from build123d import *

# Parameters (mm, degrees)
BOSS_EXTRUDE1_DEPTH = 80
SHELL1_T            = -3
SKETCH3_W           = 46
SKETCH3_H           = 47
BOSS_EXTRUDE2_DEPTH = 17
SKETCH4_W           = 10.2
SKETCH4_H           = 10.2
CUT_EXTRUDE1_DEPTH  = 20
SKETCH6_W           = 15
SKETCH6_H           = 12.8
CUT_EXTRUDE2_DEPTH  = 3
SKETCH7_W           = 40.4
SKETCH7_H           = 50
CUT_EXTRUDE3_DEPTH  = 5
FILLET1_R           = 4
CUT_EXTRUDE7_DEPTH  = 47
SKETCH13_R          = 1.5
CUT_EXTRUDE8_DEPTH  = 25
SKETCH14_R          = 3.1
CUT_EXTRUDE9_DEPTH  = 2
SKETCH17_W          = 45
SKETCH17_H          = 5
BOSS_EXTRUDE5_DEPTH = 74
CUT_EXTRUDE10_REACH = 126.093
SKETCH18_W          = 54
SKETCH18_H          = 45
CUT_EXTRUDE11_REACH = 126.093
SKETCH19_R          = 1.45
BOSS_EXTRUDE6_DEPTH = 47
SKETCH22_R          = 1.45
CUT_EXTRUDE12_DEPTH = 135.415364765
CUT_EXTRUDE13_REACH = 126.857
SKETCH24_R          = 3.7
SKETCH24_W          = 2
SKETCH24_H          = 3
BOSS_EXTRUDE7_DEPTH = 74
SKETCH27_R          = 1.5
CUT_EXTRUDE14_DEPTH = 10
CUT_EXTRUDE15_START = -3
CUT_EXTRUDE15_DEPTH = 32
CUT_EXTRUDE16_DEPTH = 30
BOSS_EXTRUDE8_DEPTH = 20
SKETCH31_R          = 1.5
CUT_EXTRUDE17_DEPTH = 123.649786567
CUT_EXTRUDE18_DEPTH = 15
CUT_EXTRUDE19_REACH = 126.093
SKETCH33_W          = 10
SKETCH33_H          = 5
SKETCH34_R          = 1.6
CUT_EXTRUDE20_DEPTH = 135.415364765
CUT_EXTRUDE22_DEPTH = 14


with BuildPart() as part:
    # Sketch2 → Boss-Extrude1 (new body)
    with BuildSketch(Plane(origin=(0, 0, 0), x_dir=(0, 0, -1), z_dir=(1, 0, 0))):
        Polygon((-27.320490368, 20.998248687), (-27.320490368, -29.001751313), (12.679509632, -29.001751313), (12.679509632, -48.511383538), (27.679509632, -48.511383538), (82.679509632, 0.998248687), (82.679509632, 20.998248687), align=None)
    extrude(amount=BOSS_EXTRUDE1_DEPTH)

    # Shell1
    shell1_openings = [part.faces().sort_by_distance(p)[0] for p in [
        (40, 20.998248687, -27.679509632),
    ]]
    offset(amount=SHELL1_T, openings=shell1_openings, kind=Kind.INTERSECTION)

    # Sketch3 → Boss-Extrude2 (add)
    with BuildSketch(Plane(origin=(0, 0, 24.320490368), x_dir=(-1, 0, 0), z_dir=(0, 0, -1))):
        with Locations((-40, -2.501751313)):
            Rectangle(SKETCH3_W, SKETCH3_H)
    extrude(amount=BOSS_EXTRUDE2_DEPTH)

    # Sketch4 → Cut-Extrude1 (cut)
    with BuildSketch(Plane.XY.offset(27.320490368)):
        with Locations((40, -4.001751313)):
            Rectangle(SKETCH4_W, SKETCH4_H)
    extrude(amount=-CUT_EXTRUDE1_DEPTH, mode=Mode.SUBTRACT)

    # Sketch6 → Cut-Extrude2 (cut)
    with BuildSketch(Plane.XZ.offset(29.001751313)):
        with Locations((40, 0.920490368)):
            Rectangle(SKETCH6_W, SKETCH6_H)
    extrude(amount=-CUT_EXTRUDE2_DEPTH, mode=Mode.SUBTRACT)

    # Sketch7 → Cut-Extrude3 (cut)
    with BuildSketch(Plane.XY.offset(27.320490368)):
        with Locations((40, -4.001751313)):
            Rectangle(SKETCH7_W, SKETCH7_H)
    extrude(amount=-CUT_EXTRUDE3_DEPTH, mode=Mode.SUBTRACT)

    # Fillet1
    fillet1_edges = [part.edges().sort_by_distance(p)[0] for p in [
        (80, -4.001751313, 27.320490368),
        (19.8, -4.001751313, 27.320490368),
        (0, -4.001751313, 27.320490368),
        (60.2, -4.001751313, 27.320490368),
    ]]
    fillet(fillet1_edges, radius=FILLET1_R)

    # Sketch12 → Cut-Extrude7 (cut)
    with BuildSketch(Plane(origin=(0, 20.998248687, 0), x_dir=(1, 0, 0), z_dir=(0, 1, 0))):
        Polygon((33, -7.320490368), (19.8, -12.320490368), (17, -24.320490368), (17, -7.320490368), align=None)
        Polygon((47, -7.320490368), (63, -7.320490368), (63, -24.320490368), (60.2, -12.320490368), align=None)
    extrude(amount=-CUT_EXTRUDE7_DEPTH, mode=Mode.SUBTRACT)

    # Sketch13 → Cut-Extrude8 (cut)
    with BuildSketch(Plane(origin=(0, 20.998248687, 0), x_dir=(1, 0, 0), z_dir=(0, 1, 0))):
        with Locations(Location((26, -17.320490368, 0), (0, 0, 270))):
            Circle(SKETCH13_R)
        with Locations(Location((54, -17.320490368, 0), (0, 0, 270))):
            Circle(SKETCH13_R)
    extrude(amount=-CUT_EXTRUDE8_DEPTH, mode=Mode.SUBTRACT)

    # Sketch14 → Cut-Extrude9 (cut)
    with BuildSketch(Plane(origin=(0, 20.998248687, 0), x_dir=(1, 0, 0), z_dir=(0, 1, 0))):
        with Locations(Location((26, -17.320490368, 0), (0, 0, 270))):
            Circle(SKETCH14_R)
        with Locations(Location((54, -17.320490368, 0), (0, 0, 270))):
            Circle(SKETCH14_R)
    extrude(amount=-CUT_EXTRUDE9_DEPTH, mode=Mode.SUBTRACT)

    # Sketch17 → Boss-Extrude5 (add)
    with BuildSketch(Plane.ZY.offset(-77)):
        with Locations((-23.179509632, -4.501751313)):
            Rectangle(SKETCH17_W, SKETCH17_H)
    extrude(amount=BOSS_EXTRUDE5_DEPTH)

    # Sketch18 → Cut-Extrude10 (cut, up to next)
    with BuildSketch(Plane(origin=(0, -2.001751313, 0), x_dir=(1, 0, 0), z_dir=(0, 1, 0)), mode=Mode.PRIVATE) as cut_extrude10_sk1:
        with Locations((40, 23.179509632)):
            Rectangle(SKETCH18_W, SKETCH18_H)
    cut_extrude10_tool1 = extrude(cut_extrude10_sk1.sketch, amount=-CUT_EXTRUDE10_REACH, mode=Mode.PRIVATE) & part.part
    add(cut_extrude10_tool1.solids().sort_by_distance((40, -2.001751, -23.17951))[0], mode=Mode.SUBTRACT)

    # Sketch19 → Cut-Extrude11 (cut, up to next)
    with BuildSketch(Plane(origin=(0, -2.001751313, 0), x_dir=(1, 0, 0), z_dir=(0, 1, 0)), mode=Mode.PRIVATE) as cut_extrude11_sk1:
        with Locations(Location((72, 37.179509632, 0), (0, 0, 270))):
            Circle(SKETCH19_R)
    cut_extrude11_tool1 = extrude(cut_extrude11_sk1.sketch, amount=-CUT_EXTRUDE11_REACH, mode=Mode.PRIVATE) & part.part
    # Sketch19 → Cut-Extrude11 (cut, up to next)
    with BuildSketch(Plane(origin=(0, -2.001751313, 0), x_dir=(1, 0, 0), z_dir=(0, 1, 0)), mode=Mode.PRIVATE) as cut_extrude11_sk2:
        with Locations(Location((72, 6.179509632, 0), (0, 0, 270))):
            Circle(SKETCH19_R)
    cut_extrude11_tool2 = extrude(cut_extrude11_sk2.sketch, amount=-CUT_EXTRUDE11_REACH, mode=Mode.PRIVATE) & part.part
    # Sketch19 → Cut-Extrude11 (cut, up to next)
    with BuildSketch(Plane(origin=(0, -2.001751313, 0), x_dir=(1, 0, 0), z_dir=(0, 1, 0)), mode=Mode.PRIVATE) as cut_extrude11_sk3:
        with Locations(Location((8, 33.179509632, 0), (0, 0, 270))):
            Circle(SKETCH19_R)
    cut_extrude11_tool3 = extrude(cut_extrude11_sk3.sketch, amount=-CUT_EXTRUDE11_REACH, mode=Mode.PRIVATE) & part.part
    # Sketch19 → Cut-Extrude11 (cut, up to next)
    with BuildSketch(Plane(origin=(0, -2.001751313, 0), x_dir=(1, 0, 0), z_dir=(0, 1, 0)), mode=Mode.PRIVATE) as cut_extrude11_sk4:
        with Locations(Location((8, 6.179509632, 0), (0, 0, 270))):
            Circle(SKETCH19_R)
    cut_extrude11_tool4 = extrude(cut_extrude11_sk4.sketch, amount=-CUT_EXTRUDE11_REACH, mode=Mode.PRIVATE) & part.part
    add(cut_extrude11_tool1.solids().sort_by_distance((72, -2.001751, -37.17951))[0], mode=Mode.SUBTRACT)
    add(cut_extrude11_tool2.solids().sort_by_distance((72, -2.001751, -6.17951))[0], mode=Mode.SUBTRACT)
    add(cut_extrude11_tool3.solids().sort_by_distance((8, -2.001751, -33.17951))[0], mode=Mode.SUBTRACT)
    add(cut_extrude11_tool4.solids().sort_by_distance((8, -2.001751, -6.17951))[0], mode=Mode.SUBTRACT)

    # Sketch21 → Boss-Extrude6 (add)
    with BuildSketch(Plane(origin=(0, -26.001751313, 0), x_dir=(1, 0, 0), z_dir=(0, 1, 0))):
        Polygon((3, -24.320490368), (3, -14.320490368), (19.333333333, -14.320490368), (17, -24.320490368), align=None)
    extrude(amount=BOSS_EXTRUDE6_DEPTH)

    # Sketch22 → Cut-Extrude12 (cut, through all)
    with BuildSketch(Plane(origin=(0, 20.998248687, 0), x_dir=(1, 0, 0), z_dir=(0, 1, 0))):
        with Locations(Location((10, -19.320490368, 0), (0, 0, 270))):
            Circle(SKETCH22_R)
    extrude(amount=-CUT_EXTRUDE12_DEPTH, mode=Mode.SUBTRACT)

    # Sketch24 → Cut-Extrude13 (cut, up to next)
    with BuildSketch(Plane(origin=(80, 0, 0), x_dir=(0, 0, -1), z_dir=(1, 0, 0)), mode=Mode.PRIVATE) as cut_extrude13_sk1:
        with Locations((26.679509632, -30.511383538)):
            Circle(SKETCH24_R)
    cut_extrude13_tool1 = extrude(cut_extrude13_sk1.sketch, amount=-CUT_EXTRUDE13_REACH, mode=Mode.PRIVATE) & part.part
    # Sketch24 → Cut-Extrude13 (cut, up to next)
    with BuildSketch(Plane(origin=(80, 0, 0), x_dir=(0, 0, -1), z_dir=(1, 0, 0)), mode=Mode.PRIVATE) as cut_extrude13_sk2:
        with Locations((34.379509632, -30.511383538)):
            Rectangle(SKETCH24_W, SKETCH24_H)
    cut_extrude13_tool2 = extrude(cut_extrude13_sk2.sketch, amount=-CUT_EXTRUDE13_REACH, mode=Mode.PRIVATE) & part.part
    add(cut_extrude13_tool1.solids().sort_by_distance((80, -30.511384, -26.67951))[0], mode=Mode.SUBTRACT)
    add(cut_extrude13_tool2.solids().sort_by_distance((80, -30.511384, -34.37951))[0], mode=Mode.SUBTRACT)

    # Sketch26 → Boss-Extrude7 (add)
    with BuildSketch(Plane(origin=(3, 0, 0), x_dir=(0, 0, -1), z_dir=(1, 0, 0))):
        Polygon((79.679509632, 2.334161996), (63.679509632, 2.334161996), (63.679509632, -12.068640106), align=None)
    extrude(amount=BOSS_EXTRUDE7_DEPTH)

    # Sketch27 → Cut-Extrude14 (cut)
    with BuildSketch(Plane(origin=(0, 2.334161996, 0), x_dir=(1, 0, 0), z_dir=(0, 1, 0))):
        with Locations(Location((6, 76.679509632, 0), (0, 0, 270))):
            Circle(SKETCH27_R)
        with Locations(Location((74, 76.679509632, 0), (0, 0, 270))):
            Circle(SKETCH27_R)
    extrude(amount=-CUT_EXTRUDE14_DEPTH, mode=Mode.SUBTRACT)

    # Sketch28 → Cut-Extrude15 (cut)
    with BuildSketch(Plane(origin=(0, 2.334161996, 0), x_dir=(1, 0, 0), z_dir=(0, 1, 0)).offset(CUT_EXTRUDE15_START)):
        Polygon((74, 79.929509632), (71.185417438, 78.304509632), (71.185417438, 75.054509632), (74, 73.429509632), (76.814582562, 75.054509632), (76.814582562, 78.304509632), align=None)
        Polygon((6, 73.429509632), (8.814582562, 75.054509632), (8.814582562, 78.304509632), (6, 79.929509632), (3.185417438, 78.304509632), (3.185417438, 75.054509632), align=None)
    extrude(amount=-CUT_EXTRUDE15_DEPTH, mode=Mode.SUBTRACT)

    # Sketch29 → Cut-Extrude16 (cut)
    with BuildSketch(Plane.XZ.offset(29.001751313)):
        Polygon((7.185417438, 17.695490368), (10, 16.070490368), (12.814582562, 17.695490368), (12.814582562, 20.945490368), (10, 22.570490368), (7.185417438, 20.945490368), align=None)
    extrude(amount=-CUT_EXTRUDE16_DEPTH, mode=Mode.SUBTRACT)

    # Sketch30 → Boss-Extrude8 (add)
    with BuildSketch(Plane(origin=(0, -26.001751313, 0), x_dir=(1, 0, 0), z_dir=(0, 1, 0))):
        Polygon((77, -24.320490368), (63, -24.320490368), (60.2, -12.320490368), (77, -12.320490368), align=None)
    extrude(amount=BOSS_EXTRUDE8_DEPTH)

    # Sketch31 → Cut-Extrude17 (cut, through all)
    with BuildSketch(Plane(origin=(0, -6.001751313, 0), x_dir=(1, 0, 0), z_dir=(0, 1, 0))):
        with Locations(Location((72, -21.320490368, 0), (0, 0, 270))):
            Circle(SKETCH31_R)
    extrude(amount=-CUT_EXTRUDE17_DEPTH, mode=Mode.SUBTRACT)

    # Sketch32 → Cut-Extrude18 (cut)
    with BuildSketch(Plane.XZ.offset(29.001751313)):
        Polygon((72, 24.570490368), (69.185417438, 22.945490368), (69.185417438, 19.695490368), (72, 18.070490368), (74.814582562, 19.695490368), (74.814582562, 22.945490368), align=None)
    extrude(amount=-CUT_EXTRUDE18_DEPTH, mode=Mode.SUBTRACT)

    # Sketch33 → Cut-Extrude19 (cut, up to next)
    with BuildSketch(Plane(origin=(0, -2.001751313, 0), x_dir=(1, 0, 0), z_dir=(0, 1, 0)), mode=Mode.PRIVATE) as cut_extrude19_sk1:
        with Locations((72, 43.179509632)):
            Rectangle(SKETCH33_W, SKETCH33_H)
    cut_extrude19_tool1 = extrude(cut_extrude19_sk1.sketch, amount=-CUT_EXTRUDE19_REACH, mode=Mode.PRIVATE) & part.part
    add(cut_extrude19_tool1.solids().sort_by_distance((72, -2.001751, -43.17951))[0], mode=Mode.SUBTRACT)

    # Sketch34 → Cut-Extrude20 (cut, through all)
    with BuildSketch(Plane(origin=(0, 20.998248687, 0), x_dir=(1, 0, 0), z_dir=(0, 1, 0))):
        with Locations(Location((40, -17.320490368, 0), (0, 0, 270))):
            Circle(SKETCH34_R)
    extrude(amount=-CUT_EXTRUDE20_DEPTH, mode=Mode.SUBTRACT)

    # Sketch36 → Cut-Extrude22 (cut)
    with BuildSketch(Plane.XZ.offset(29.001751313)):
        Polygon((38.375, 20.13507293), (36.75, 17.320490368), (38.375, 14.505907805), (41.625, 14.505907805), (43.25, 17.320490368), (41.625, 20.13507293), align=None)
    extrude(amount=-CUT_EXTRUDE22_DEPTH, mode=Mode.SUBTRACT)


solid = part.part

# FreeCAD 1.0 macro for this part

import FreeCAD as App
import Part
import Sketcher
Q = App.Units.Quantity


def edges_at(feature, points):
    """Names of the edges that pass closest to the given points."""
    edges = feature.Shape.Edges
    near = lambda p: min(range(len(edges)), key=lambda i: edges[i].distToShape(Part.Vertex(*p))[0])
    return sorted({f"Edge{near(p) + 1}" for p in points})


def faces_at(feature, points):
    """Names of the faces that lie closest to the given points."""
    faces = feature.Shape.Faces
    near = lambda p: min(range(len(faces)), key=lambda i: faces[i].distToShape(Part.Vertex(*p))[0])
    return sorted({f"Face{near(p) + 1}" for p in points})

doc = App.newDocument("Part")
body = doc.addObject("PartDesign::Body", "Body")

# Sketch on YZ plane
sketch1 = body.newObject("Sketcher::SketchObject", "Sketch")
sketch1.AttachmentSupport = (doc.getObject("YZ_Plane"), [""])
sketch1.MapMode = "FlatFace"
sketch1.addGeometry(Part.LineSegment(App.Vector(21, 27, 0), App.Vector(-29, 27, 0)), False)
sketch1.addGeometry(Part.LineSegment(App.Vector(-29, 27, 0), App.Vector(-29, -13, 0)), False)
sketch1.addGeometry(Part.LineSegment(App.Vector(-29, -13, 0), App.Vector(-49, -13, 0)), False)
sketch1.addGeometry(Part.LineSegment(App.Vector(-49, -13, 0), App.Vector(-49, -28, 0)), False)
sketch1.addGeometry(Part.LineSegment(App.Vector(-49, -28, 0), App.Vector(1, -83, 0)), False)
sketch1.addGeometry(Part.LineSegment(App.Vector(1, -83, 0), App.Vector(21, -83, 0)), False)
sketch1.addGeometry(Part.LineSegment(App.Vector(21, -83, 0), App.Vector(21, 27, 0)), False)
sketch1.addConstraint(Sketcher.Constraint("Coincident", 0, 2, 1, 1))
sketch1.addConstraint(Sketcher.Constraint("Coincident", 1, 2, 2, 1))
sketch1.addConstraint(Sketcher.Constraint("Coincident", 2, 2, 3, 1))
sketch1.addConstraint(Sketcher.Constraint("Coincident", 3, 2, 4, 1))
sketch1.addConstraint(Sketcher.Constraint("Coincident", 4, 2, 5, 1))
sketch1.addConstraint(Sketcher.Constraint("Coincident", 5, 2, 6, 1))
sketch1.addConstraint(Sketcher.Constraint("Coincident", 6, 2, 0, 1))
sketch1.addConstraint(Sketcher.Constraint("Horizontal", 0))
sketch1.addConstraint(Sketcher.Constraint("Vertical", 1))
sketch1.addConstraint(Sketcher.Constraint("Horizontal", 2))
sketch1.addConstraint(Sketcher.Constraint("Vertical", 3))
sketch1.addConstraint(Sketcher.Constraint("Horizontal", 5))
sketch1.addConstraint(Sketcher.Constraint("Vertical", 6))
sketch1.addConstraint(Sketcher.Constraint("DistanceX", 0, 2, 0, 1, 50.0))
sketch1.addConstraint(Sketcher.Constraint("DistanceX", 5, 1, 5, 2, 20.0))
sketch1.addConstraint(Sketcher.Constraint("DistanceY", 1, 2, 1, 1, 40.0))
sketch1.addConstraint(Sketcher.Constraint("DistanceY", 3, 2, 3, 1, 15.0))
sketch1.addConstraint(Sketcher.Constraint("DistanceY", 6, 1, 6, 2, 110.0))
sketch1.addConstraint(Sketcher.Constraint("DistanceX", 2, 2, 2, 1, 19.509632))
sketch1.addConstraint(Sketcher.Constraint("DistanceX", 0, 2, -1, 1, 29.001751))
sketch1.addConstraint(Sketcher.Constraint("DistanceY", -1, 1, 0, 2, 27.32049))
pad1 = body.newObject("PartDesign::Pad", "Pad")
pad1.Profile = sketch1
pad1.Length = 80
doc.recompute()

thickness = body.newObject("PartDesign::Thickness", "Thickness")
thickness.Base = (pad1, faces_at(pad1, [(40, 20.998, -27.68)]))
thickness.Value = 3
thickness.Reversed = True
thickness.Join = "Intersection"

# Sketch on XY plane
sketch2 = body.newObject("Sketcher::SketchObject", "Sketch001")
sketch2.AttachmentSupport = (doc.getObject("XY_Plane"), [""])
sketch2.MapMode = "FlatFace"
sketch2.AttachmentOffset = App.Placement(App.Vector(0, 0, 24.32049), App.Rotation())
sketch2.addGeometry(Part.LineSegment(App.Vector(63, 21, 0), App.Vector(63, -26, 0)), False)
sketch2.addGeometry(Part.LineSegment(App.Vector(63, -26, 0), App.Vector(17, -26, 0)), False)
sketch2.addGeometry(Part.LineSegment(App.Vector(17, -26, 0), App.Vector(17, 21, 0)), False)
sketch2.addGeometry(Part.LineSegment(App.Vector(17, 21, 0), App.Vector(63, 21, 0)), False)
sketch2.addConstraint(Sketcher.Constraint("Coincident", 0, 2, 1, 1))
sketch2.addConstraint(Sketcher.Constraint("Coincident", 1, 2, 2, 1))
sketch2.addConstraint(Sketcher.Constraint("Coincident", 2, 2, 3, 1))
sketch2.addConstraint(Sketcher.Constraint("Coincident", 3, 2, 0, 1))
sketch2.addConstraint(Sketcher.Constraint("Vertical", 0))
sketch2.addConstraint(Sketcher.Constraint("Horizontal", 1))
sketch2.addConstraint(Sketcher.Constraint("Vertical", 2))
sketch2.addConstraint(Sketcher.Constraint("Horizontal", 3))
sketch2.addConstraint(Sketcher.Constraint("DistanceX", 1, 2, 1, 1, 46.0))
sketch2.addConstraint(Sketcher.Constraint("DistanceY", 0, 2, 0, 1, 47.0))
sketch2.addConstraint(Sketcher.Constraint("DistanceX", -1, 1, 0, 2, 63.0))
sketch2.addConstraint(Sketcher.Constraint("DistanceY", 0, 2, -1, 1, 26.001751))
pad2 = body.newObject("PartDesign::Pad", "Pad001")
pad2.Profile = sketch2
pad2.Length = 17
pad2.Reversed = True

# Sketch on XY plane
sketch3 = body.newObject("Sketcher::SketchObject", "Sketch002")
sketch3.AttachmentSupport = (doc.getObject("XY_Plane"), [""])
sketch3.MapMode = "FlatFace"
sketch3.AttachmentOffset = App.Placement(App.Vector(0, 0, 27.32049), App.Rotation())
sketch3.addGeometry(Part.LineSegment(App.Vector(35, 1, 0), App.Vector(35, -9, 0)), False)
sketch3.addGeometry(Part.LineSegment(App.Vector(35, -9, 0), App.Vector(45, -9, 0)), False)
sketch3.addGeometry(Part.LineSegment(App.Vector(45, -9, 0), App.Vector(45, 1, 0)), False)
sketch3.addGeometry(Part.LineSegment(App.Vector(45, 1, 0), App.Vector(35, 1, 0)), False)
sketch3.addConstraint(Sketcher.Constraint("Coincident", 0, 2, 1, 1))
sketch3.addConstraint(Sketcher.Constraint("Coincident", 1, 2, 2, 1))
sketch3.addConstraint(Sketcher.Constraint("Coincident", 2, 2, 3, 1))
sketch3.addConstraint(Sketcher.Constraint("Coincident", 3, 2, 0, 1))
sketch3.addConstraint(Sketcher.Constraint("Vertical", 0))
sketch3.addConstraint(Sketcher.Constraint("Horizontal", 1))
sketch3.addConstraint(Sketcher.Constraint("Vertical", 2))
sketch3.addConstraint(Sketcher.Constraint("Horizontal", 3))
sketch3.addConstraint(Sketcher.Constraint("Equal", 3, 0))
sketch3.addConstraint(Sketcher.Constraint("DistanceX", 1, 1, 1, 2, 10.2))
sketch3.addConstraint(Sketcher.Constraint("DistanceX", -1, 1, 0, 2, 34.9))
sketch3.addConstraint(Sketcher.Constraint("DistanceY", 0, 2, -1, 1, 9.101751))
pocket1 = body.newObject("PartDesign::Pocket", "Pocket")
pocket1.Profile = sketch3
pocket1.Length = 20

# Sketch on XZ plane
sketch4 = body.newObject("Sketcher::SketchObject", "Sketch003")
sketch4.AttachmentSupport = (doc.getObject("XZ_Plane"), [""])
sketch4.MapMode = "FlatFace"
sketch4.AttachmentOffset = App.Placement(App.Vector(0, 0, 29.001751), App.Rotation())
sketch4.addGeometry(Part.LineSegment(App.Vector(32, 7, 0), App.Vector(32, -5, 0)), False)
sketch4.addGeometry(Part.LineSegment(App.Vector(32, -5, 0), App.Vector(48, -5, 0)), False)
sketch4.addGeometry(Part.LineSegment(App.Vector(48, -5, 0), App.Vector(48, 7, 0)), False)
sketch4.addGeometry(Part.LineSegment(App.Vector(48, 7, 0), App.Vector(32, 7, 0)), False)
sketch4.addConstraint(Sketcher.Constraint("Coincident", 0, 2, 1, 1))
sketch4.addConstraint(Sketcher.Constraint("Coincident", 1, 2, 2, 1))
sketch4.addConstraint(Sketcher.Constraint("Coincident", 2, 2, 3, 1))
sketch4.addConstraint(Sketcher.Constraint("Coincident", 3, 2, 0, 1))
sketch4.addConstraint(Sketcher.Constraint("Vertical", 0))
sketch4.addConstraint(Sketcher.Constraint("Horizontal", 1))
sketch4.addConstraint(Sketcher.Constraint("Vertical", 2))
sketch4.addConstraint(Sketcher.Constraint("Horizontal", 3))
sketch4.addConstraint(Sketcher.Constraint("DistanceX", 1, 1, 1, 2, 15.0))
sketch4.addConstraint(Sketcher.Constraint("DistanceY", 0, 2, 0, 1, 12.8))
sketch4.addConstraint(Sketcher.Constraint("DistanceX", -1, 1, 0, 2, 32.5))
sketch4.addConstraint(Sketcher.Constraint("DistanceY", 0, 2, -1, 1, 5.47951))
pocket2 = body.newObject("PartDesign::Pocket", "Pocket001")
pocket2.Profile = sketch4
pocket2.Length = 3

# Sketch on XY plane
sketch5 = body.newObject("Sketcher::SketchObject", "Sketch004")
sketch5.AttachmentSupport = (doc.getObject("XY_Plane"), [""])
sketch5.MapMode = "FlatFace"
sketch5.AttachmentOffset = App.Placement(App.Vector(0, 0, 27.32049), App.Rotation())
sketch5.addGeometry(Part.LineSegment(App.Vector(20, 21, 0), App.Vector(20, -29, 0)), False)
sketch5.addGeometry(Part.LineSegment(App.Vector(20, -29, 0), App.Vector(60, -29, 0)), False)
sketch5.addGeometry(Part.LineSegment(App.Vector(60, -29, 0), App.Vector(60, 21, 0)), False)
sketch5.addGeometry(Part.LineSegment(App.Vector(60, 21, 0), App.Vector(20, 21, 0)), False)
sketch5.addConstraint(Sketcher.Constraint("Coincident", 0, 2, 1, 1))
sketch5.addConstraint(Sketcher.Constraint("Coincident", 1, 2, 2, 1))
sketch5.addConstraint(Sketcher.Constraint("Coincident", 2, 2, 3, 1))
sketch5.addConstraint(Sketcher.Constraint("Coincident", 3, 2, 0, 1))
sketch5.addConstraint(Sketcher.Constraint("Vertical", 0))
sketch5.addConstraint(Sketcher.Constraint("Horizontal", 1))
sketch5.addConstraint(Sketcher.Constraint("Vertical", 2))
sketch5.addConstraint(Sketcher.Constraint("Horizontal", 3))
sketch5.addConstraint(Sketcher.Constraint("DistanceY", 0, 2, 0, 1, 50.0))
sketch5.addConstraint(Sketcher.Constraint("DistanceX", 1, 1, 1, 2, 40.4))
sketch5.addConstraint(Sketcher.Constraint("DistanceX", -1, 1, 0, 2, 19.8))
sketch5.addConstraint(Sketcher.Constraint("DistanceY", 0, 2, -1, 1, 29.001751))
pocket3 = body.newObject("PartDesign::Pocket", "Pocket002")
pocket3.Profile = sketch5
pocket3.Length = 5
doc.recompute()

fillet = body.newObject("PartDesign::Fillet", "Fillet")
fillet.Base = (pocket3, edges_at(pocket3, [
    (80, -4.002, 27.32),
    (19.8, -4.002, 27.32),
    (0, -4.002, 27.32),
    (60.2, -4.002, 27.32),
]))
fillet.Radius = 4

# Sketch on XZ plane
sketch6 = body.newObject("Sketcher::SketchObject", "Sketch005")
sketch6.AttachmentSupport = (doc.getObject("XZ_Plane"), [""])
sketch6.MapMode = "FlatFace"
sketch6.AttachmentOffset = App.Placement(App.Vector(0, 0, -20.998249), App.Rotation())
sketch6.addGeometry(Part.LineSegment(App.Vector(20, 12, 0), App.Vector(33, 7, 0)), False)
sketch6.addGeometry(Part.LineSegment(App.Vector(33, 7, 0), App.Vector(17, 7, 0)), False)
sketch6.addGeometry(Part.LineSegment(App.Vector(17, 7, 0), App.Vector(17, 24, 0)), False)
sketch6.addGeometry(Part.LineSegment(App.Vector(17, 24, 0), App.Vector(20, 12, 0)), False)
sketch6.addGeometry(Part.LineSegment(App.Vector(63, 7, 0), App.Vector(47, 7, 0)), False)
sketch6.addGeometry(Part.LineSegment(App.Vector(47, 7, 0), App.Vector(60, 12, 0)), False)
sketch6.addGeometry(Part.LineSegment(App.Vector(60, 12, 0), App.Vector(63, 24, 0)), False)
sketch6.addGeometry(Part.LineSegment(App.Vector(63, 24, 0), App.Vector(63, 7, 0)), False)
sketch6.addConstraint(Sketcher.Constraint("Coincident", 0, 2, 1, 1))
sketch6.addConstraint(Sketcher.Constraint("Coincident", 1, 2, 2, 1))
sketch6.addConstraint(Sketcher.Constraint("Coincident", 2, 2, 3, 1))
sketch6.addConstraint(Sketcher.Constraint("Coincident", 3, 2, 0, 1))
sketch6.addConstraint(Sketcher.Constraint("Coincident", 4, 2, 5, 1))
sketch6.addConstraint(Sketcher.Constraint("Coincident", 5, 2, 6, 1))
sketch6.addConstraint(Sketcher.Constraint("Coincident", 6, 2, 7, 1))
sketch6.addConstraint(Sketcher.Constraint("Coincident", 7, 2, 4, 1))
sketch6.addConstraint(Sketcher.Constraint("Horizontal", 1))
sketch6.addConstraint(Sketcher.Constraint("Vertical", 2))
sketch6.addConstraint(Sketcher.Constraint("Horizontal", 4))
sketch6.addConstraint(Sketcher.Constraint("Vertical", 7))
sketch6.addConstraint(Sketcher.Constraint("Horizontal", 1, 2, 4, 2))
sketch6.addConstraint(Sketcher.Constraint("Horizontal", 3, 2, 5, 2))
sketch6.addConstraint(Sketcher.Constraint("Horizontal", 2, 2, 6, 2))
sketch6.addConstraint(Sketcher.Constraint("Equal", 1, 4))
sketch6.addConstraint(Sketcher.Constraint("Equal", 0, 5))
sketch6.addConstraint(Sketcher.Constraint("DistanceX", 1, 2, 1, 1, 16.0))
sketch6.addConstraint(Sketcher.Constraint("DistanceY", 2, 1, 2, 2, 17.0))
sketch6.addConstraint(Sketcher.Constraint("DistanceX", -1, 1, 0, 2, 33.0))
sketch6.addConstraint(Sketcher.Constraint("DistanceX", -1, 1, 4, 2, 47.0))
sketch6.addConstraint(Sketcher.Constraint("DistanceY", 1, 2, 3, 2, 5.0))
sketch6.addConstraint(Sketcher.Constraint("DistanceX", -1, 1, 3, 2, 19.8))
sketch6.addConstraint(Sketcher.Constraint("DistanceY", -1, 1, 0, 2, 7.32049))
pocket4 = body.newObject("PartDesign::Pocket", "Pocket003")
pocket4.Profile = sketch6
pocket4.Length = 47
pocket4.Reversed = True

# Sketch on XZ plane
sketch7 = body.newObject("Sketcher::SketchObject", "Sketch006")
sketch7.AttachmentSupport = (doc.getObject("XZ_Plane"), [""])
sketch7.MapMode = "FlatFace"
sketch7.AttachmentOffset = App.Placement(App.Vector(0, 0, -20.998249), App.Rotation())
sketch7.addGeometry(Part.Circle(App.Vector(26, 17.3, 0), App.Vector(0, 0, 1), 1.5), False)
sketch7.addGeometry(Part.Circle(App.Vector(54, 17.3, 0), App.Vector(0, 0, 1), 1.5), False)
sketch7.addConstraint(Sketcher.Constraint("Equal", 0, 1))
sketch7.addConstraint(Sketcher.Constraint("Horizontal", 0, 3, 1, 3))
sketch7.addConstraint(Sketcher.Constraint("Diameter", 0, 3.0))
sketch7.addConstraint(Sketcher.Constraint("DistanceX", -1, 1, 0, 3, 26.0))
sketch7.addConstraint(Sketcher.Constraint("DistanceX", -1, 1, 1, 3, 54.0))
sketch7.addConstraint(Sketcher.Constraint("DistanceY", -1, 1, 0, 3, 17.32049))
pocket5 = body.newObject("PartDesign::Pocket", "Pocket004")
pocket5.Profile = sketch7
pocket5.Length = 25
pocket5.Reversed = True

# Sketch on XZ plane
sketch8 = body.newObject("Sketcher::SketchObject", "Sketch007")
sketch8.AttachmentSupport = (doc.getObject("XZ_Plane"), [""])
sketch8.MapMode = "FlatFace"
sketch8.AttachmentOffset = App.Placement(App.Vector(0, 0, -20.998249), App.Rotation())
sketch8.addGeometry(Part.Circle(App.Vector(26, 17.3, 0), App.Vector(0, 0, 1), 3.1), False)
sketch8.addGeometry(Part.Circle(App.Vector(54, 17.3, 0), App.Vector(0, 0, 1), 3.1), False)
sketch8.addConstraint(Sketcher.Constraint("Equal", 0, 1))
sketch8.addConstraint(Sketcher.Constraint("Horizontal", 0, 3, 1, 3))
sketch8.addConstraint(Sketcher.Constraint("Diameter", 0, 6.2))
sketch8.addConstraint(Sketcher.Constraint("DistanceX", -1, 1, 0, 3, 26.0))
sketch8.addConstraint(Sketcher.Constraint("DistanceX", -1, 1, 1, 3, 54.0))
sketch8.addConstraint(Sketcher.Constraint("DistanceY", -1, 1, 0, 3, 17.32049))
pocket6 = body.newObject("PartDesign::Pocket", "Pocket005")
pocket6.Profile = sketch8
pocket6.Length = 2
pocket6.Reversed = True

# Sketch on YZ plane
sketch9 = body.newObject("Sketcher::SketchObject", "Sketch008")
sketch9.AttachmentSupport = (doc.getObject("YZ_Plane"), [""])
sketch9.MapMode = "FlatFace"
sketch9.AttachmentOffset = App.Placement(App.Vector(0, 0, 77), App.Rotation())
sketch9.addGeometry(Part.LineSegment(App.Vector(-2, -46, 0), App.Vector(-7, -46, 0)), False)
sketch9.addGeometry(Part.LineSegment(App.Vector(-7, -46, 0), App.Vector(-7, -1, 0)), False)
sketch9.addGeometry(Part.LineSegment(App.Vector(-7, -1, 0), App.Vector(-2, -1, 0)), False)
sketch9.addGeometry(Part.LineSegment(App.Vector(-2, -1, 0), App.Vector(-2, -46, 0)), False)
sketch9.addConstraint(Sketcher.Constraint("Coincident", 0, 2, 1, 1))
sketch9.addConstraint(Sketcher.Constraint("Coincident", 1, 2, 2, 1))
sketch9.addConstraint(Sketcher.Constraint("Coincident", 2, 2, 3, 1))
sketch9.addConstraint(Sketcher.Constraint("Coincident", 3, 2, 0, 1))
sketch9.addConstraint(Sketcher.Constraint("Horizontal", 0))
sketch9.addConstraint(Sketcher.Constraint("Vertical", 1))
sketch9.addConstraint(Sketcher.Constraint("Horizontal", 2))
sketch9.addConstraint(Sketcher.Constraint("Vertical", 3))
sketch9.addConstraint(Sketcher.Constraint("DistanceX", 0, 2, 0, 1, 5.0))
sketch9.addConstraint(Sketcher.Constraint("DistanceY", 1, 1, 1, 2, 45.0))
sketch9.addConstraint(Sketcher.Constraint("DistanceX", 0, 2, -1, 1, 7.001751))
sketch9.addConstraint(Sketcher.Constraint("DistanceY", 0, 2, -1, 1, 45.67951))
pad3 = body.newObject("PartDesign::Pad", "Pad002")
pad3.Profile = sketch9
pad3.Length = 74
pad3.Reversed = True

# Sketch on XZ plane
sketch10 = body.newObject("Sketcher::SketchObject", "Sketch009")
sketch10.AttachmentSupport = (doc.getObject("XZ_Plane"), [""])
sketch10.MapMode = "FlatFace"
sketch10.AttachmentOffset = App.Placement(App.Vector(0, 0, 2.001751), App.Rotation())
sketch10.addGeometry(Part.LineSegment(App.Vector(13, -46, 0), App.Vector(13, -1, 0)), False)
sketch10.addGeometry(Part.LineSegment(App.Vector(13, -1, 0), App.Vector(67, -1, 0)), False)
sketch10.addGeometry(Part.LineSegment(App.Vector(67, -1, 0), App.Vector(67, -46, 0)), False)
sketch10.addGeometry(Part.LineSegment(App.Vector(67, -46, 0), App.Vector(13, -46, 0)), False)
sketch10.addConstraint(Sketcher.Constraint("Coincident", 0, 2, 1, 1))
sketch10.addConstraint(Sketcher.Constraint("Coincident", 1, 2, 2, 1))
sketch10.addConstraint(Sketcher.Constraint("Coincident", 2, 2, 3, 1))
sketch10.addConstraint(Sketcher.Constraint("Coincident", 3, 2, 0, 1))
sketch10.addConstraint(Sketcher.Constraint("Vertical", 0))
sketch10.addConstraint(Sketcher.Constraint("Horizontal", 1))
sketch10.addConstraint(Sketcher.Constraint("Vertical", 2))
sketch10.addConstraint(Sketcher.Constraint("Horizontal", 3))
sketch10.addConstraint(Sketcher.Constraint("DistanceX", 1, 1, 1, 2, 54.0))
sketch10.addConstraint(Sketcher.Constraint("DistanceY", 0, 1, 0, 2, 45.0))
sketch10.addConstraint(Sketcher.Constraint("DistanceX", -1, 1, 0, 2, 13.0))
sketch10.addConstraint(Sketcher.Constraint("DistanceY", 0, 2, -1, 1, 0.67951))
pocket7 = body.newObject("PartDesign::Pocket", "Pocket006")
pocket7.Profile = sketch10
pocket7.Type = "UpToFirst"
pocket7.Reversed = True

# Sketch on XZ plane
sketch11 = body.newObject("Sketcher::SketchObject", "Sketch010")
sketch11.AttachmentSupport = (doc.getObject("XZ_Plane"), [""])
sketch11.MapMode = "FlatFace"
sketch11.AttachmentOffset = App.Placement(App.Vector(0, 0, 2.001751), App.Rotation())
sketch11.addGeometry(Part.Circle(App.Vector(72, -37.2, 0), App.Vector(0, 0, 1), 1.4), False)
sketch11.addConstraint(Sketcher.Constraint("Diameter", 0, 2.9))
sketch11.addConstraint(Sketcher.Constraint("DistanceX", -1, 1, 0, 3, 72.0))
sketch11.addConstraint(Sketcher.Constraint("DistanceY", 0, 3, -1, 1, 37.17951))
pocket8 = body.newObject("PartDesign::Pocket", "Pocket007")
pocket8.Profile = sketch11
pocket8.Type = "UpToFirst"
pocket8.Reversed = True

# Sketch on XZ plane
sketch12 = body.newObject("Sketcher::SketchObject", "Sketch011")
sketch12.AttachmentSupport = (doc.getObject("XZ_Plane"), [""])
sketch12.MapMode = "FlatFace"
sketch12.AttachmentOffset = App.Placement(App.Vector(0, 0, 2.001751), App.Rotation())
sketch12.addGeometry(Part.Circle(App.Vector(72, -6.2, 0), App.Vector(0, 0, 1), 1.4), False)
sketch12.addConstraint(Sketcher.Constraint("Diameter", 0, 2.9))
sketch12.addConstraint(Sketcher.Constraint("DistanceX", -1, 1, 0, 3, 72.0))
sketch12.addConstraint(Sketcher.Constraint("DistanceY", 0, 3, -1, 1, 6.17951))
pocket9 = body.newObject("PartDesign::Pocket", "Pocket008")
pocket9.Profile = sketch12
pocket9.Type = "UpToFirst"
pocket9.Reversed = True

# Sketch on XZ plane
sketch13 = body.newObject("Sketcher::SketchObject", "Sketch012")
sketch13.AttachmentSupport = (doc.getObject("XZ_Plane"), [""])
sketch13.MapMode = "FlatFace"
sketch13.AttachmentOffset = App.Placement(App.Vector(0, 0, 2.001751), App.Rotation())
sketch13.addGeometry(Part.Circle(App.Vector(8, -33.2, 0), App.Vector(0, 0, 1), 1.4), False)
sketch13.addConstraint(Sketcher.Constraint("Diameter", 0, 2.9))
sketch13.addConstraint(Sketcher.Constraint("DistanceX", -1, 1, 0, 3, 8.0))
sketch13.addConstraint(Sketcher.Constraint("DistanceY", 0, 3, -1, 1, 33.17951))
pocket10 = body.newObject("PartDesign::Pocket", "Pocket009")
pocket10.Profile = sketch13
pocket10.Type = "UpToFirst"
pocket10.Reversed = True

# Sketch on XZ plane
sketch14 = body.newObject("Sketcher::SketchObject", "Sketch013")
sketch14.AttachmentSupport = (doc.getObject("XZ_Plane"), [""])
sketch14.MapMode = "FlatFace"
sketch14.AttachmentOffset = App.Placement(App.Vector(0, 0, 2.001751), App.Rotation())
sketch14.addGeometry(Part.Circle(App.Vector(8, -6.2, 0), App.Vector(0, 0, 1), 1.4), False)
sketch14.addConstraint(Sketcher.Constraint("Diameter", 0, 2.9))
sketch14.addConstraint(Sketcher.Constraint("DistanceX", -1, 1, 0, 3, 8.0))
sketch14.addConstraint(Sketcher.Constraint("DistanceY", 0, 3, -1, 1, 6.17951))
pocket11 = body.newObject("PartDesign::Pocket", "Pocket010")
pocket11.Profile = sketch14
pocket11.Type = "UpToFirst"
pocket11.Reversed = True

# Sketch on XZ plane
sketch15 = body.newObject("Sketcher::SketchObject", "Sketch014")
sketch15.AttachmentSupport = (doc.getObject("XZ_Plane"), [""])
sketch15.MapMode = "FlatFace"
sketch15.AttachmentOffset = App.Placement(App.Vector(0, 0, 26.001751), App.Rotation())
sketch15.addGeometry(Part.LineSegment(App.Vector(3, 14, 0), App.Vector(3, 24, 0)), False)
sketch15.addGeometry(Part.LineSegment(App.Vector(3, 24, 0), App.Vector(17, 24, 0)), False)
sketch15.addGeometry(Part.LineSegment(App.Vector(17, 24, 0), App.Vector(19, 14, 0)), False)
sketch15.addGeometry(Part.LineSegment(App.Vector(19, 14, 0), App.Vector(3, 14, 0)), False)
sketch15.addConstraint(Sketcher.Constraint("Coincident", 0, 2, 1, 1))
sketch15.addConstraint(Sketcher.Constraint("Coincident", 1, 2, 2, 1))
sketch15.addConstraint(Sketcher.Constraint("Coincident", 2, 2, 3, 1))
sketch15.addConstraint(Sketcher.Constraint("Coincident", 3, 2, 0, 1))
sketch15.addConstraint(Sketcher.Constraint("Vertical", 0))
sketch15.addConstraint(Sketcher.Constraint("Horizontal", 1))
sketch15.addConstraint(Sketcher.Constraint("Horizontal", 3))
sketch15.addConstraint(Sketcher.Constraint("DistanceX", 1, 1, 1, 2, 14.0))
sketch15.addConstraint(Sketcher.Constraint("DistanceY", 0, 1, 0, 2, 10.0))
sketch15.addConstraint(Sketcher.Constraint("DistanceX", -1, 1, 0, 2, 3.0))
sketch15.addConstraint(Sketcher.Constraint("DistanceX", 3, 2, 3, 1, 16.333333))
sketch15.addConstraint(Sketcher.Constraint("DistanceY", -1, 1, 0, 2, 24.32049))
pad4 = body.newObject("PartDesign::Pad", "Pad003")
pad4.Profile = sketch15
pad4.Length = 47
pad4.Reversed = True

# Sketch on XZ plane
sketch16 = body.newObject("Sketcher::SketchObject", "Sketch015")
sketch16.AttachmentSupport = (doc.getObject("XZ_Plane"), [""])
sketch16.MapMode = "FlatFace"
sketch16.AttachmentOffset = App.Placement(App.Vector(0, 0, -20.998249), App.Rotation())
sketch16.addGeometry(Part.Circle(App.Vector(10, 19.3, 0), App.Vector(0, 0, 1), 1.4), False)
sketch16.addConstraint(Sketcher.Constraint("Diameter", 0, 2.9))
sketch16.addConstraint(Sketcher.Constraint("DistanceX", -1, 1, 0, 3, 10.0))
sketch16.addConstraint(Sketcher.Constraint("DistanceY", -1, 1, 0, 3, 19.32049))
pocket12 = body.newObject("PartDesign::Pocket", "Pocket011")
pocket12.Profile = sketch16
pocket12.Type = "ThroughAll"
pocket12.Reversed = True

# Sketch on YZ plane
sketch17 = body.newObject("Sketcher::SketchObject", "Sketch016")
sketch17.AttachmentSupport = (doc.getObject("YZ_Plane"), [""])
sketch17.MapMode = "FlatFace"
sketch17.AttachmentOffset = App.Placement(App.Vector(0, 0, 80), App.Rotation())
sketch17.addGeometry(Part.Circle(App.Vector(-30.5, -26.7, 0), App.Vector(0, 0, 1), 3.7), False)
sketch17.addConstraint(Sketcher.Constraint("Diameter", 0, 7.4))
sketch17.addConstraint(Sketcher.Constraint("DistanceY", 0, 3, -1, 1, 26.67951))
sketch17.addConstraint(Sketcher.Constraint("DistanceX", 0, 3, -1, 1, 30.511384))
pocket13 = body.newObject("PartDesign::Pocket", "Pocket012")
pocket13.Profile = sketch17
pocket13.Type = "UpToFirst"

# Sketch on YZ plane
sketch18 = body.newObject("Sketcher::SketchObject", "Sketch017")
sketch18.AttachmentSupport = (doc.getObject("YZ_Plane"), [""])
sketch18.MapMode = "FlatFace"
sketch18.AttachmentOffset = App.Placement(App.Vector(0, 0, 80), App.Rotation())
sketch18.addGeometry(Part.LineSegment(App.Vector(-29, -33.4, 0), App.Vector(-32, -33.4, 0)), False)
sketch18.addGeometry(Part.LineSegment(App.Vector(-32, -33.4, 0), App.Vector(-32, -35.4, 0)), False)
sketch18.addGeometry(Part.LineSegment(App.Vector(-32, -35.4, 0), App.Vector(-29, -35.4, 0)), False)
sketch18.addGeometry(Part.LineSegment(App.Vector(-29, -35.4, 0), App.Vector(-29, -33.4, 0)), False)
sketch18.addConstraint(Sketcher.Constraint("Coincident", 0, 2, 1, 1))
sketch18.addConstraint(Sketcher.Constraint("Coincident", 1, 2, 2, 1))
sketch18.addConstraint(Sketcher.Constraint("Coincident", 2, 2, 3, 1))
sketch18.addConstraint(Sketcher.Constraint("Coincident", 3, 2, 0, 1))
sketch18.addConstraint(Sketcher.Constraint("Horizontal", 0))
sketch18.addConstraint(Sketcher.Constraint("Vertical", 1))
sketch18.addConstraint(Sketcher.Constraint("Horizontal", 2))
sketch18.addConstraint(Sketcher.Constraint("Vertical", 3))
sketch18.addConstraint(Sketcher.Constraint("DistanceX", 0, 2, 0, 1, 3.0))
sketch18.addConstraint(Sketcher.Constraint("DistanceY", 1, 2, 1, 1, 2.0))
sketch18.addConstraint(Sketcher.Constraint("DistanceY", 0, 2, -1, 1, 33.37951))
sketch18.addConstraint(Sketcher.Constraint("DistanceX", 0, 2, -1, 1, 32.011384))
pocket14 = body.newObject("PartDesign::Pocket", "Pocket013")
pocket14.Profile = sketch18
pocket14.Type = "UpToFirst"

# Sketch on YZ plane
sketch19 = body.newObject("Sketcher::SketchObject", "Sketch018")
sketch19.AttachmentSupport = (doc.getObject("YZ_Plane"), [""])
sketch19.MapMode = "FlatFace"
sketch19.AttachmentOffset = App.Placement(App.Vector(0, 0, 3), App.Rotation())
sketch19.addGeometry(Part.LineSegment(App.Vector(2, -80, 0), App.Vector(2, -64, 0)), False)
sketch19.addGeometry(Part.LineSegment(App.Vector(2, -64, 0), App.Vector(-12, -64, 0)), False)
sketch19.addGeometry(Part.LineSegment(App.Vector(-12, -64, 0), App.Vector(2, -80, 0)), False)
sketch19.addConstraint(Sketcher.Constraint("Coincident", 0, 2, 1, 1))
sketch19.addConstraint(Sketcher.Constraint("Coincident", 1, 2, 2, 1))
sketch19.addConstraint(Sketcher.Constraint("Coincident", 2, 2, 0, 1))
sketch19.addConstraint(Sketcher.Constraint("Vertical", 0))
sketch19.addConstraint(Sketcher.Constraint("Horizontal", 1))
sketch19.addConstraint(Sketcher.Constraint("DistanceY", 0, 1, 0, 2, 16.0))
sketch19.addConstraint(Sketcher.Constraint("DistanceX", 1, 2, 1, 1, 14.402802))
sketch19.addConstraint(Sketcher.Constraint("DistanceX", -1, 1, 0, 2, 2.334162))
sketch19.addConstraint(Sketcher.Constraint("DistanceY", 0, 2, -1, 1, 63.67951))
pad5 = body.newObject("PartDesign::Pad", "Pad004")
pad5.Profile = sketch19
pad5.Length = 74

# Sketch on XZ plane
sketch20 = body.newObject("Sketcher::SketchObject", "Sketch019")
sketch20.AttachmentSupport = (doc.getObject("XZ_Plane"), [""])
sketch20.MapMode = "FlatFace"
sketch20.AttachmentOffset = App.Placement(App.Vector(0, 0, -2.334162), App.Rotation())
sketch20.addGeometry(Part.Circle(App.Vector(6, -76.7, 0), App.Vector(0, 0, 1), 1.5), False)
sketch20.addGeometry(Part.Circle(App.Vector(74, -76.7, 0), App.Vector(0, 0, 1), 1.5), False)
sketch20.addConstraint(Sketcher.Constraint("Equal", 0, 1))
sketch20.addConstraint(Sketcher.Constraint("Horizontal", 0, 3, 1, 3))
sketch20.addConstraint(Sketcher.Constraint("Diameter", 0, 3.0))
sketch20.addConstraint(Sketcher.Constraint("DistanceX", -1, 1, 0, 3, 6.0))
sketch20.addConstraint(Sketcher.Constraint("DistanceX", -1, 1, 1, 3, 74.0))
sketch20.addConstraint(Sketcher.Constraint("DistanceY", 0, 3, -1, 1, 76.67951))
pocket15 = body.newObject("PartDesign::Pocket", "Pocket014")
pocket15.Profile = sketch20
pocket15.Length = 10
pocket15.Reversed = True

# Sketch on XZ plane
sketch21 = body.newObject("Sketcher::SketchObject", "Sketch020")
sketch21.AttachmentSupport = (doc.getObject("XZ_Plane"), [""])
sketch21.MapMode = "FlatFace"
sketch21.AttachmentOffset = App.Placement(App.Vector(0, 0, 0.665838), App.Rotation())
sketch21.addGeometry(Part.LineSegment(App.Vector(74, -79.9, 0), App.Vector(71.2, -78.3, 0)), False)
sketch21.addGeometry(Part.LineSegment(App.Vector(71.2, -78.3, 0), App.Vector(71.2, -75.1, 0)), False)
sketch21.addGeometry(Part.LineSegment(App.Vector(71.2, -75.1, 0), App.Vector(74, -73.4, 0)), False)
sketch21.addGeometry(Part.LineSegment(App.Vector(74, -73.4, 0), App.Vector(76.8, -75.1, 0)), False)
sketch21.addGeometry(Part.LineSegment(App.Vector(76.8, -75.1, 0), App.Vector(76.8, -78.3, 0)), False)
sketch21.addGeometry(Part.LineSegment(App.Vector(76.8, -78.3, 0), App.Vector(74, -79.9, 0)), False)
sketch21.addGeometry(Part.LineSegment(App.Vector(6, -73.4, 0), App.Vector(8.8, -75.1, 0)), False)
sketch21.addGeometry(Part.LineSegment(App.Vector(8.8, -75.1, 0), App.Vector(8.8, -78.3, 0)), False)
sketch21.addGeometry(Part.LineSegment(App.Vector(8.8, -78.3, 0), App.Vector(6, -79.9, 0)), False)
sketch21.addGeometry(Part.LineSegment(App.Vector(6, -79.9, 0), App.Vector(3.2, -78.3, 0)), False)
sketch21.addGeometry(Part.LineSegment(App.Vector(3.2, -78.3, 0), App.Vector(3.2, -75.1, 0)), False)
sketch21.addGeometry(Part.LineSegment(App.Vector(3.2, -75.1, 0), App.Vector(6, -73.4, 0)), False)
sketch21.addConstraint(Sketcher.Constraint("Coincident", 0, 2, 1, 1))
sketch21.addConstraint(Sketcher.Constraint("Coincident", 1, 2, 2, 1))
sketch21.addConstraint(Sketcher.Constraint("Coincident", 2, 2, 3, 1))
sketch21.addConstraint(Sketcher.Constraint("Coincident", 3, 2, 4, 1))
sketch21.addConstraint(Sketcher.Constraint("Coincident", 4, 2, 5, 1))
sketch21.addConstraint(Sketcher.Constraint("Coincident", 5, 2, 0, 1))
sketch21.addConstraint(Sketcher.Constraint("Coincident", 6, 2, 7, 1))
sketch21.addConstraint(Sketcher.Constraint("Coincident", 7, 2, 8, 1))
sketch21.addConstraint(Sketcher.Constraint("Coincident", 8, 2, 9, 1))
sketch21.addConstraint(Sketcher.Constraint("Coincident", 9, 2, 10, 1))
sketch21.addConstraint(Sketcher.Constraint("Coincident", 10, 2, 11, 1))
sketch21.addConstraint(Sketcher.Constraint("Coincident", 11, 2, 6, 1))
sketch21.addConstraint(Sketcher.Constraint("Vertical", 1))
sketch21.addConstraint(Sketcher.Constraint("Vertical", 4))
sketch21.addConstraint(Sketcher.Constraint("Vertical", 7))
sketch21.addConstraint(Sketcher.Constraint("Vertical", 10))
sketch21.addConstraint(Sketcher.Constraint("Parallel", 0, 3))
sketch21.addConstraint(Sketcher.Constraint("Parallel", 2, 5))
sketch21.addConstraint(Sketcher.Constraint("Parallel", 3, 6))
sketch21.addConstraint(Sketcher.Constraint("Parallel", 5, 8))
sketch21.addConstraint(Sketcher.Constraint("Parallel", 6, 9))
sketch21.addConstraint(Sketcher.Constraint("Parallel", 8, 11))
sketch21.addConstraint(Sketcher.Constraint("Horizontal", 1, 2, 3, 2))
sketch21.addConstraint(Sketcher.Constraint("Horizontal", 0, 2, 4, 2))
sketch21.addConstraint(Sketcher.Constraint("Horizontal", 3, 2, 6, 2))
sketch21.addConstraint(Sketcher.Constraint("Horizontal", 4, 2, 7, 2))
sketch21.addConstraint(Sketcher.Constraint("Horizontal", 5, 2, 8, 2))
sketch21.addConstraint(Sketcher.Constraint("Horizontal", 7, 2, 9, 2))
sketch21.addConstraint(Sketcher.Constraint("Horizontal", 6, 2, 10, 2))
sketch21.addConstraint(Sketcher.Constraint("Vertical", 2, 2, 5, 2))
sketch21.addConstraint(Sketcher.Constraint("Angle", 0, Q("150 deg")))
sketch21.addConstraint(Sketcher.Constraint("DistanceX", -1, 1, 2, 2, 74.0))
sketch21.addConstraint(Sketcher.Constraint("DistanceX", -1, 1, 8, 2, 6.0))
sketch21.addConstraint(Sketcher.Constraint("DistanceY", 1, 1, 1, 2, 3.25))
sketch21.addConstraint(Sketcher.Constraint("DistanceY", 5, 2, 2, 2, 6.5))
sketch21.addConstraint(Sketcher.Constraint("DistanceY", 0, 2, -1, 1, 78.30451))
pocket16 = body.newObject("PartDesign::Pocket", "Pocket015")
pocket16.Profile = sketch21
pocket16.Length = 32
pocket16.Reversed = True

# Sketch on XZ plane
sketch22 = body.newObject("Sketcher::SketchObject", "Sketch021")
sketch22.AttachmentSupport = (doc.getObject("XZ_Plane"), [""])
sketch22.MapMode = "FlatFace"
sketch22.AttachmentOffset = App.Placement(App.Vector(0, 0, 29.001751), App.Rotation())
sketch22.addGeometry(Part.LineSegment(App.Vector(7.2, 17.7, 0), App.Vector(10, 16.1, 0)), False)
sketch22.addGeometry(Part.LineSegment(App.Vector(10, 16.1, 0), App.Vector(12.8, 17.7, 0)), False)
sketch22.addGeometry(Part.LineSegment(App.Vector(12.8, 17.7, 0), App.Vector(12.8, 20.9, 0)), False)
sketch22.addGeometry(Part.LineSegment(App.Vector(12.8, 20.9, 0), App.Vector(10, 22.6, 0)), False)
sketch22.addGeometry(Part.LineSegment(App.Vector(10, 22.6, 0), App.Vector(7.2, 20.9, 0)), False)
sketch22.addGeometry(Part.LineSegment(App.Vector(7.2, 20.9, 0), App.Vector(7.2, 17.7, 0)), False)
sketch22.addConstraint(Sketcher.Constraint("Coincident", 0, 2, 1, 1))
sketch22.addConstraint(Sketcher.Constraint("Coincident", 1, 2, 2, 1))
sketch22.addConstraint(Sketcher.Constraint("Coincident", 2, 2, 3, 1))
sketch22.addConstraint(Sketcher.Constraint("Coincident", 3, 2, 4, 1))
sketch22.addConstraint(Sketcher.Constraint("Coincident", 4, 2, 5, 1))
sketch22.addConstraint(Sketcher.Constraint("Coincident", 5, 2, 0, 1))
sketch22.addConstraint(Sketcher.Constraint("Vertical", 2))
sketch22.addConstraint(Sketcher.Constraint("Vertical", 5))
sketch22.addConstraint(Sketcher.Constraint("Parallel", 0, 3))
sketch22.addConstraint(Sketcher.Constraint("Parallel", 1, 4))
sketch22.addConstraint(Sketcher.Constraint("Horizontal", 2, 2, 4, 2))
sketch22.addConstraint(Sketcher.Constraint("Horizontal", 1, 2, 5, 2))
sketch22.addConstraint(Sketcher.Constraint("Vertical", 0, 2, 3, 2))
sketch22.addConstraint(Sketcher.Constraint("Angle", 0, Q("-30 deg")))
sketch22.addConstraint(Sketcher.Constraint("DistanceX", -1, 1, 0, 2, 10.0))
sketch22.addConstraint(Sketcher.Constraint("DistanceY", 2, 1, 2, 2, 3.25))
sketch22.addConstraint(Sketcher.Constraint("DistanceY", 0, 2, 3, 2, 6.5))
sketch22.addConstraint(Sketcher.Constraint("DistanceY", -1, 1, 0, 2, 16.07049))
pocket17 = body.newObject("PartDesign::Pocket", "Pocket016")
pocket17.Profile = sketch22
pocket17.Length = 30

# Sketch on XZ plane
sketch23 = body.newObject("Sketcher::SketchObject", "Sketch022")
sketch23.AttachmentSupport = (doc.getObject("XZ_Plane"), [""])
sketch23.MapMode = "FlatFace"
sketch23.AttachmentOffset = App.Placement(App.Vector(0, 0, 26.001751), App.Rotation())
sketch23.addGeometry(Part.LineSegment(App.Vector(63, 24, 0), App.Vector(77, 24, 0)), False)
sketch23.addGeometry(Part.LineSegment(App.Vector(77, 24, 0), App.Vector(77, 12, 0)), False)
sketch23.addGeometry(Part.LineSegment(App.Vector(77, 12, 0), App.Vector(60, 12, 0)), False)
sketch23.addGeometry(Part.LineSegment(App.Vector(60, 12, 0), App.Vector(63, 24, 0)), False)
sketch23.addConstraint(Sketcher.Constraint("Coincident", 0, 2, 1, 1))
sketch23.addConstraint(Sketcher.Constraint("Coincident", 1, 2, 2, 1))
sketch23.addConstraint(Sketcher.Constraint("Coincident", 2, 2, 3, 1))
sketch23.addConstraint(Sketcher.Constraint("Coincident", 3, 2, 0, 1))
sketch23.addConstraint(Sketcher.Constraint("Horizontal", 0))
sketch23.addConstraint(Sketcher.Constraint("Vertical", 1))
sketch23.addConstraint(Sketcher.Constraint("Horizontal", 2))
sketch23.addConstraint(Sketcher.Constraint("DistanceX", 0, 1, 0, 2, 14.0))
sketch23.addConstraint(Sketcher.Constraint("DistanceY", 1, 2, 1, 1, 12.0))
sketch23.addConstraint(Sketcher.Constraint("DistanceX", 2, 2, 2, 1, 16.8))
sketch23.addConstraint(Sketcher.Constraint("DistanceX", -1, 1, 0, 2, 77.0))
sketch23.addConstraint(Sketcher.Constraint("DistanceY", -1, 1, 0, 2, 24.32049))
pad6 = body.newObject("PartDesign::Pad", "Pad005")
pad6.Profile = sketch23
pad6.Length = 20
pad6.Reversed = True

# Sketch on XZ plane
sketch24 = body.newObject("Sketcher::SketchObject", "Sketch023")
sketch24.AttachmentSupport = (doc.getObject("XZ_Plane"), [""])
sketch24.MapMode = "FlatFace"
sketch24.AttachmentOffset = App.Placement(App.Vector(0, 0, 6.001751), App.Rotation())
sketch24.addGeometry(Part.Circle(App.Vector(72, 21.3, 0), App.Vector(0, 0, 1), 1.5), False)
sketch24.addConstraint(Sketcher.Constraint("Diameter", 0, 3.0))
sketch24.addConstraint(Sketcher.Constraint("DistanceX", -1, 1, 0, 3, 72.0))
sketch24.addConstraint(Sketcher.Constraint("DistanceY", -1, 1, 0, 3, 21.32049))
pocket18 = body.newObject("PartDesign::Pocket", "Pocket017")
pocket18.Profile = sketch24
pocket18.Type = "ThroughAll"
pocket18.Reversed = True

# Sketch on XZ plane
sketch25 = body.newObject("Sketcher::SketchObject", "Sketch024")
sketch25.AttachmentSupport = (doc.getObject("XZ_Plane"), [""])
sketch25.MapMode = "FlatFace"
sketch25.AttachmentOffset = App.Placement(App.Vector(0, 0, 29.001751), App.Rotation())
sketch25.addGeometry(Part.LineSegment(App.Vector(72, 24.6, 0), App.Vector(69.2, 22.9, 0)), False)
sketch25.addGeometry(Part.LineSegment(App.Vector(69.2, 22.9, 0), App.Vector(69.2, 19.7, 0)), False)
sketch25.addGeometry(Part.LineSegment(App.Vector(69.2, 19.7, 0), App.Vector(72, 18.1, 0)), False)
sketch25.addGeometry(Part.LineSegment(App.Vector(72, 18.1, 0), App.Vector(74.8, 19.7, 0)), False)
sketch25.addGeometry(Part.LineSegment(App.Vector(74.8, 19.7, 0), App.Vector(74.8, 22.9, 0)), False)
sketch25.addGeometry(Part.LineSegment(App.Vector(74.8, 22.9, 0), App.Vector(72, 24.6, 0)), False)
sketch25.addConstraint(Sketcher.Constraint("Coincident", 0, 2, 1, 1))
sketch25.addConstraint(Sketcher.Constraint("Coincident", 1, 2, 2, 1))
sketch25.addConstraint(Sketcher.Constraint("Coincident", 2, 2, 3, 1))
sketch25.addConstraint(Sketcher.Constraint("Coincident", 3, 2, 4, 1))
sketch25.addConstraint(Sketcher.Constraint("Coincident", 4, 2, 5, 1))
sketch25.addConstraint(Sketcher.Constraint("Coincident", 5, 2, 0, 1))
sketch25.addConstraint(Sketcher.Constraint("Vertical", 1))
sketch25.addConstraint(Sketcher.Constraint("Vertical", 4))
sketch25.addConstraint(Sketcher.Constraint("Parallel", 0, 3))
sketch25.addConstraint(Sketcher.Constraint("Parallel", 2, 5))
sketch25.addConstraint(Sketcher.Constraint("Horizontal", 1, 2, 3, 2))
sketch25.addConstraint(Sketcher.Constraint("Horizontal", 0, 2, 4, 2))
sketch25.addConstraint(Sketcher.Constraint("Vertical", 2, 2, 5, 2))
sketch25.addConstraint(Sketcher.Constraint("Angle", 0, Q("-150 deg")))
sketch25.addConstraint(Sketcher.Constraint("DistanceX", -1, 1, 2, 2, 72.0))
sketch25.addConstraint(Sketcher.Constraint("DistanceY", 1, 2, 1, 1, 3.25))
sketch25.addConstraint(Sketcher.Constraint("DistanceY", 2, 2, 5, 2, 6.5))
sketch25.addConstraint(Sketcher.Constraint("DistanceY", -1, 1, 0, 2, 22.94549))
pocket19 = body.newObject("PartDesign::Pocket", "Pocket018")
pocket19.Profile = sketch25
pocket19.Length = 15

# Sketch on XZ plane
sketch26 = body.newObject("Sketcher::SketchObject", "Sketch025")
sketch26.AttachmentSupport = (doc.getObject("XZ_Plane"), [""])
sketch26.MapMode = "FlatFace"
sketch26.AttachmentOffset = App.Placement(App.Vector(0, 0, 2.001751), App.Rotation())
sketch26.addGeometry(Part.LineSegment(App.Vector(67, -46, 0), App.Vector(67, -41, 0)), False)
sketch26.addGeometry(Part.LineSegment(App.Vector(67, -41, 0), App.Vector(77, -41, 0)), False)
sketch26.addGeometry(Part.LineSegment(App.Vector(77, -41, 0), App.Vector(77, -46, 0)), False)
sketch26.addGeometry(Part.LineSegment(App.Vector(77, -46, 0), App.Vector(67, -46, 0)), False)
sketch26.addConstraint(Sketcher.Constraint("Coincident", 0, 2, 1, 1))
sketch26.addConstraint(Sketcher.Constraint("Coincident", 1, 2, 2, 1))
sketch26.addConstraint(Sketcher.Constraint("Coincident", 2, 2, 3, 1))
sketch26.addConstraint(Sketcher.Constraint("Coincident", 3, 2, 0, 1))
sketch26.addConstraint(Sketcher.Constraint("Vertical", 0))
sketch26.addConstraint(Sketcher.Constraint("Horizontal", 1))
sketch26.addConstraint(Sketcher.Constraint("Vertical", 2))
sketch26.addConstraint(Sketcher.Constraint("Horizontal", 3))
sketch26.addConstraint(Sketcher.Constraint("DistanceX", 1, 1, 1, 2, 10.0))
sketch26.addConstraint(Sketcher.Constraint("DistanceY", 0, 1, 0, 2, 5.0))
sketch26.addConstraint(Sketcher.Constraint("DistanceX", -1, 1, 0, 2, 67.0))
sketch26.addConstraint(Sketcher.Constraint("DistanceY", 0, 2, -1, 1, 40.67951))
pocket20 = body.newObject("PartDesign::Pocket", "Pocket019")
pocket20.Profile = sketch26
pocket20.Type = "UpToFirst"
pocket20.Reversed = True

# Sketch on XZ plane
sketch27 = body.newObject("Sketcher::SketchObject", "Sketch026")
sketch27.AttachmentSupport = (doc.getObject("XZ_Plane"), [""])
sketch27.MapMode = "FlatFace"
sketch27.AttachmentOffset = App.Placement(App.Vector(0, 0, -20.998249), App.Rotation())
sketch27.addGeometry(Part.Circle(App.Vector(40, 17.3, 0), App.Vector(0, 0, 1), 1.6), False)
sketch27.addConstraint(Sketcher.Constraint("Diameter", 0, 3.2))
sketch27.addConstraint(Sketcher.Constraint("DistanceX", -1, 1, 0, 3, 40.0))
sketch27.addConstraint(Sketcher.Constraint("DistanceY", -1, 1, 0, 3, 17.32049))
pocket21 = body.newObject("PartDesign::Pocket", "Pocket020")
pocket21.Profile = sketch27
pocket21.Type = "ThroughAll"
pocket21.Reversed = True

# Sketch on XZ plane
sketch28 = body.newObject("Sketcher::SketchObject", "Sketch027")
sketch28.AttachmentSupport = (doc.getObject("XZ_Plane"), [""])
sketch28.MapMode = "FlatFace"
sketch28.AttachmentOffset = App.Placement(App.Vector(0, 0, 29.001751), App.Rotation())
sketch28.addGeometry(Part.LineSegment(App.Vector(38.4, 20.1, 0), App.Vector(36.8, 17.3, 0)), False)
sketch28.addGeometry(Part.LineSegment(App.Vector(36.8, 17.3, 0), App.Vector(38.4, 14.5, 0)), False)
sketch28.addGeometry(Part.LineSegment(App.Vector(38.4, 14.5, 0), App.Vector(41.6, 14.5, 0)), False)
sketch28.addGeometry(Part.LineSegment(App.Vector(41.6, 14.5, 0), App.Vector(43.2, 17.3, 0)), False)
sketch28.addGeometry(Part.LineSegment(App.Vector(43.2, 17.3, 0), App.Vector(41.6, 20.1, 0)), False)
sketch28.addGeometry(Part.LineSegment(App.Vector(41.6, 20.1, 0), App.Vector(38.4, 20.1, 0)), False)
sketch28.addConstraint(Sketcher.Constraint("Coincident", 0, 2, 1, 1))
sketch28.addConstraint(Sketcher.Constraint("Coincident", 1, 2, 2, 1))
sketch28.addConstraint(Sketcher.Constraint("Coincident", 2, 2, 3, 1))
sketch28.addConstraint(Sketcher.Constraint("Coincident", 3, 2, 4, 1))
sketch28.addConstraint(Sketcher.Constraint("Coincident", 4, 2, 5, 1))
sketch28.addConstraint(Sketcher.Constraint("Coincident", 5, 2, 0, 1))
sketch28.addConstraint(Sketcher.Constraint("Horizontal", 2))
sketch28.addConstraint(Sketcher.Constraint("Horizontal", 5))
sketch28.addConstraint(Sketcher.Constraint("Parallel", 0, 3))
sketch28.addConstraint(Sketcher.Constraint("Parallel", 1, 4))
sketch28.addConstraint(Sketcher.Constraint("Horizontal", 0, 2, 3, 2))
sketch28.addConstraint(Sketcher.Constraint("Vertical", 2, 2, 4, 2))
sketch28.addConstraint(Sketcher.Constraint("Vertical", 1, 2, 5, 2))
sketch28.addConstraint(Sketcher.Constraint("Angle", 0, Q("-120 deg")))
sketch28.addConstraint(Sketcher.Constraint("DistanceX", 2, 1, 2, 2, 3.25))
sketch28.addConstraint(Sketcher.Constraint("DistanceX", 0, 2, 3, 2, 6.5))
sketch28.addConstraint(Sketcher.Constraint("DistanceX", -1, 1, 0, 2, 36.75))
sketch28.addConstraint(Sketcher.Constraint("DistanceY", -1, 1, 0, 2, 17.32049))
pocket22 = body.newObject("PartDesign::Pocket", "Pocket021")
pocket22.Profile = sketch28
pocket22.Length = 14

doc.recompute()
